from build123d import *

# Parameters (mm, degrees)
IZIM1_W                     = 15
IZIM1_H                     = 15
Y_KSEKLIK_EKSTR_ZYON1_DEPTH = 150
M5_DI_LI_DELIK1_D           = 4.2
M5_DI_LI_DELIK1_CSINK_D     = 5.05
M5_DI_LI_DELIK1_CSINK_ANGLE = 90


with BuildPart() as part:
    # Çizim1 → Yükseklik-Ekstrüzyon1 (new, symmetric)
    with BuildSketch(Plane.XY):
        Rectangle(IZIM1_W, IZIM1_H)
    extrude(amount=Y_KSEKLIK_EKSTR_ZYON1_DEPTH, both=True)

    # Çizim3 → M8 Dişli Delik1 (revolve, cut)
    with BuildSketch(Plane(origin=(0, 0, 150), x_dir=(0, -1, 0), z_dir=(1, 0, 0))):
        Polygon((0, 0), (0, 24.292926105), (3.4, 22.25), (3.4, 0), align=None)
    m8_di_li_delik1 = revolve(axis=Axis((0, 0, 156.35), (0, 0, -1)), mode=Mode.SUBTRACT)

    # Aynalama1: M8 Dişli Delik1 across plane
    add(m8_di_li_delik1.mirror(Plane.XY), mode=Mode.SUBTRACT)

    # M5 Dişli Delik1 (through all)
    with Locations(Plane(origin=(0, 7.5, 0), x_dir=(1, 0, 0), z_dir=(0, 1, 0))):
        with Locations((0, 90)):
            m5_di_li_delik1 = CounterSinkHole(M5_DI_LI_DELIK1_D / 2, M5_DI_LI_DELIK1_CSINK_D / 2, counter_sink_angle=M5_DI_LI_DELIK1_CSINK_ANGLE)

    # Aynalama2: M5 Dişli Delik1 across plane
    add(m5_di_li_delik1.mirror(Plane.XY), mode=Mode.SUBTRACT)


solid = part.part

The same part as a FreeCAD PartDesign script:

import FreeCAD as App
import Part
import Sketcher
from FreeCAD import Vector
Q = App.Units.Quantity

doc = App.newDocument("Part")
body = doc.addObject("PartDesign::Body", "Body")

# Sketch on XY plane
sketch1 = body.newObject("Sketcher::SketchObject", "Sketch")
sketch1.AttachmentSupport = (doc.getObject("XY_Plane"), [""])
sketch1.MapMode = "FlatFace"
sketch1.addGeometry([
    Part.LineSegment(Vector(-8, 8, 0), Vector(-8, -8, 0)),
    Part.LineSegment(Vector(-8, -8, 0), Vector(8, -8, 0)),
    Part.LineSegment(Vector(8, -8, 0), Vector(8, 8, 0)),
    Part.LineSegment(Vector(8, 8, 0), Vector(-8, 8, 0)),
], False)
sketch1.addConstraint([
    Sketcher.Constraint("Coincident", 0, 2, 1, 1),
    Sketcher.Constraint("Coincident", 1, 2, 2, 1),
    Sketcher.Constraint("Coincident", 2, 2, 3, 1),
    Sketcher.Constraint("Coincident", 3, 2, 0, 1),
    Sketcher.Constraint("Vertical", 0),
    Sketcher.Constraint("Horizontal", 1),
    Sketcher.Constraint("Vertical", 2),
    Sketcher.Constraint("Horizontal", 3),
    Sketcher.Constraint("Symmetric", 0, 2, 2, 2, -1, 1),
    Sketcher.Constraint("Equal", 3, 0),
    Sketcher.Constraint("DistanceX", 1, 1, 1, 2, Q("15 mm")),
])
pad1 = body.newObject("PartDesign::Pad", "Pad")
pad1.Profile = sketch1
pad1.Length = 300
pad1.Midplane = True

# Sketch on YZ plane
sketch2 = body.newObject("Sketcher::SketchObject", "Sketch001")
sketch2.AttachmentSupport = (doc.getObject("YZ_Plane"), [""])
sketch2.MapMode = "FlatFace"
sketch2.addGeometry([
    Part.LineSegment(Vector(0, 125.7, 0), Vector(0, 150, 0)),
    Part.LineSegment(Vector(0, 150, 0), Vector(-3.4, 150, 0)),
    Part.LineSegment(Vector(-3.4, 150, 0), Vector(-3.4, 127.8, 0)),
    Part.LineSegment(Vector(-3.4, 127.8, 0), Vector(0, 125.7, 0)),
], False)
sketch2.addConstraint([
    Sketcher.Constraint("Coincident", 0, 2, 1, 1),
    Sketcher.Constraint("Coincident", 1, 2, 2, 1),
    Sketcher.Constraint("Coincident", 2, 2, 3, 1),
    Sketcher.Constraint("Coincident", 3, 2, 0, 1),
    Sketcher.Constraint("Vertical", 0),
    Sketcher.Constraint("Horizontal", 1),
    Sketcher.Constraint("Vertical", 2),
    Sketcher.Constraint("PointOnObject", 0, 2, -2),
    Sketcher.Constraint("Angle", 3, Q("-31 deg")),
    Sketcher.Constraint("DistanceX", 1, 2, 1, 1, Q("3.4 mm")),
    Sketcher.Constraint("DistanceY", -1, 1, 0, 2, Q("150 mm")),
    Sketcher.Constraint("DistanceY", 2, 2, 2, 1, Q("22.25 mm")),
])
groove = body.newObject("PartDesign::Groove", "Groove")
groove.Profile = sketch2
groove.ReferenceAxis = (sketch2, ["V_Axis"])
groove.Angle = 360
doc.recompute()

mirrored = body.newObject("PartDesign::Mirrored", "Mirrored")
mirrored.Originals = [groove]
mirrored.MirrorPlane = (doc.getObject("XY_Plane"), [""])
body.Tip = mirrored

# Sketch on XZ plane
sketch3 = body.newObject("Sketcher::SketchObject", "Sketch002")
sketch3.AttachmentSupport = (doc.getObject("XZ_Plane"), [""])
sketch3.MapMode = "FlatFace"
sketch3.AttachmentOffset = App.Placement(Vector(0, 0, -7.5), App.Rotation())
sketch3.addGeometry(Part.Circle(Vector(0, -90, 0), Vector(0, 0, 1), 2.1), False)
sketch3.addConstraint([
    Sketcher.Constraint("PointOnObject", 0, 3, -2),
    Sketcher.Constraint("Diameter", 0, Q("4.2 mm")),
    Sketcher.Constraint("DistanceY", 0, 3, -1, 1, Q("90 mm")),
])
doc.recompute()
hole = body.newObject("PartDesign::Hole", "Hole")
hole.Profile = sketch3
hole.ThreadType = "None"
hole.Diameter = 4.2
hole.DepthType = "ThroughAll"
hole.HoleCutType = "Countersink"
hole.HoleCutDiameter = 5.05
hole.HoleCutCountersinkAngle = 90
hole.Reversed = True
doc.recompute()

mirrored2 = body.newObject("PartDesign::Mirrored", "Mirrored001")
mirrored2.Originals = [hole]
mirrored2.MirrorPlane = (doc.getObject("XY_Plane"), [""])
body.Tip = mirrored2

doc.recompute()
